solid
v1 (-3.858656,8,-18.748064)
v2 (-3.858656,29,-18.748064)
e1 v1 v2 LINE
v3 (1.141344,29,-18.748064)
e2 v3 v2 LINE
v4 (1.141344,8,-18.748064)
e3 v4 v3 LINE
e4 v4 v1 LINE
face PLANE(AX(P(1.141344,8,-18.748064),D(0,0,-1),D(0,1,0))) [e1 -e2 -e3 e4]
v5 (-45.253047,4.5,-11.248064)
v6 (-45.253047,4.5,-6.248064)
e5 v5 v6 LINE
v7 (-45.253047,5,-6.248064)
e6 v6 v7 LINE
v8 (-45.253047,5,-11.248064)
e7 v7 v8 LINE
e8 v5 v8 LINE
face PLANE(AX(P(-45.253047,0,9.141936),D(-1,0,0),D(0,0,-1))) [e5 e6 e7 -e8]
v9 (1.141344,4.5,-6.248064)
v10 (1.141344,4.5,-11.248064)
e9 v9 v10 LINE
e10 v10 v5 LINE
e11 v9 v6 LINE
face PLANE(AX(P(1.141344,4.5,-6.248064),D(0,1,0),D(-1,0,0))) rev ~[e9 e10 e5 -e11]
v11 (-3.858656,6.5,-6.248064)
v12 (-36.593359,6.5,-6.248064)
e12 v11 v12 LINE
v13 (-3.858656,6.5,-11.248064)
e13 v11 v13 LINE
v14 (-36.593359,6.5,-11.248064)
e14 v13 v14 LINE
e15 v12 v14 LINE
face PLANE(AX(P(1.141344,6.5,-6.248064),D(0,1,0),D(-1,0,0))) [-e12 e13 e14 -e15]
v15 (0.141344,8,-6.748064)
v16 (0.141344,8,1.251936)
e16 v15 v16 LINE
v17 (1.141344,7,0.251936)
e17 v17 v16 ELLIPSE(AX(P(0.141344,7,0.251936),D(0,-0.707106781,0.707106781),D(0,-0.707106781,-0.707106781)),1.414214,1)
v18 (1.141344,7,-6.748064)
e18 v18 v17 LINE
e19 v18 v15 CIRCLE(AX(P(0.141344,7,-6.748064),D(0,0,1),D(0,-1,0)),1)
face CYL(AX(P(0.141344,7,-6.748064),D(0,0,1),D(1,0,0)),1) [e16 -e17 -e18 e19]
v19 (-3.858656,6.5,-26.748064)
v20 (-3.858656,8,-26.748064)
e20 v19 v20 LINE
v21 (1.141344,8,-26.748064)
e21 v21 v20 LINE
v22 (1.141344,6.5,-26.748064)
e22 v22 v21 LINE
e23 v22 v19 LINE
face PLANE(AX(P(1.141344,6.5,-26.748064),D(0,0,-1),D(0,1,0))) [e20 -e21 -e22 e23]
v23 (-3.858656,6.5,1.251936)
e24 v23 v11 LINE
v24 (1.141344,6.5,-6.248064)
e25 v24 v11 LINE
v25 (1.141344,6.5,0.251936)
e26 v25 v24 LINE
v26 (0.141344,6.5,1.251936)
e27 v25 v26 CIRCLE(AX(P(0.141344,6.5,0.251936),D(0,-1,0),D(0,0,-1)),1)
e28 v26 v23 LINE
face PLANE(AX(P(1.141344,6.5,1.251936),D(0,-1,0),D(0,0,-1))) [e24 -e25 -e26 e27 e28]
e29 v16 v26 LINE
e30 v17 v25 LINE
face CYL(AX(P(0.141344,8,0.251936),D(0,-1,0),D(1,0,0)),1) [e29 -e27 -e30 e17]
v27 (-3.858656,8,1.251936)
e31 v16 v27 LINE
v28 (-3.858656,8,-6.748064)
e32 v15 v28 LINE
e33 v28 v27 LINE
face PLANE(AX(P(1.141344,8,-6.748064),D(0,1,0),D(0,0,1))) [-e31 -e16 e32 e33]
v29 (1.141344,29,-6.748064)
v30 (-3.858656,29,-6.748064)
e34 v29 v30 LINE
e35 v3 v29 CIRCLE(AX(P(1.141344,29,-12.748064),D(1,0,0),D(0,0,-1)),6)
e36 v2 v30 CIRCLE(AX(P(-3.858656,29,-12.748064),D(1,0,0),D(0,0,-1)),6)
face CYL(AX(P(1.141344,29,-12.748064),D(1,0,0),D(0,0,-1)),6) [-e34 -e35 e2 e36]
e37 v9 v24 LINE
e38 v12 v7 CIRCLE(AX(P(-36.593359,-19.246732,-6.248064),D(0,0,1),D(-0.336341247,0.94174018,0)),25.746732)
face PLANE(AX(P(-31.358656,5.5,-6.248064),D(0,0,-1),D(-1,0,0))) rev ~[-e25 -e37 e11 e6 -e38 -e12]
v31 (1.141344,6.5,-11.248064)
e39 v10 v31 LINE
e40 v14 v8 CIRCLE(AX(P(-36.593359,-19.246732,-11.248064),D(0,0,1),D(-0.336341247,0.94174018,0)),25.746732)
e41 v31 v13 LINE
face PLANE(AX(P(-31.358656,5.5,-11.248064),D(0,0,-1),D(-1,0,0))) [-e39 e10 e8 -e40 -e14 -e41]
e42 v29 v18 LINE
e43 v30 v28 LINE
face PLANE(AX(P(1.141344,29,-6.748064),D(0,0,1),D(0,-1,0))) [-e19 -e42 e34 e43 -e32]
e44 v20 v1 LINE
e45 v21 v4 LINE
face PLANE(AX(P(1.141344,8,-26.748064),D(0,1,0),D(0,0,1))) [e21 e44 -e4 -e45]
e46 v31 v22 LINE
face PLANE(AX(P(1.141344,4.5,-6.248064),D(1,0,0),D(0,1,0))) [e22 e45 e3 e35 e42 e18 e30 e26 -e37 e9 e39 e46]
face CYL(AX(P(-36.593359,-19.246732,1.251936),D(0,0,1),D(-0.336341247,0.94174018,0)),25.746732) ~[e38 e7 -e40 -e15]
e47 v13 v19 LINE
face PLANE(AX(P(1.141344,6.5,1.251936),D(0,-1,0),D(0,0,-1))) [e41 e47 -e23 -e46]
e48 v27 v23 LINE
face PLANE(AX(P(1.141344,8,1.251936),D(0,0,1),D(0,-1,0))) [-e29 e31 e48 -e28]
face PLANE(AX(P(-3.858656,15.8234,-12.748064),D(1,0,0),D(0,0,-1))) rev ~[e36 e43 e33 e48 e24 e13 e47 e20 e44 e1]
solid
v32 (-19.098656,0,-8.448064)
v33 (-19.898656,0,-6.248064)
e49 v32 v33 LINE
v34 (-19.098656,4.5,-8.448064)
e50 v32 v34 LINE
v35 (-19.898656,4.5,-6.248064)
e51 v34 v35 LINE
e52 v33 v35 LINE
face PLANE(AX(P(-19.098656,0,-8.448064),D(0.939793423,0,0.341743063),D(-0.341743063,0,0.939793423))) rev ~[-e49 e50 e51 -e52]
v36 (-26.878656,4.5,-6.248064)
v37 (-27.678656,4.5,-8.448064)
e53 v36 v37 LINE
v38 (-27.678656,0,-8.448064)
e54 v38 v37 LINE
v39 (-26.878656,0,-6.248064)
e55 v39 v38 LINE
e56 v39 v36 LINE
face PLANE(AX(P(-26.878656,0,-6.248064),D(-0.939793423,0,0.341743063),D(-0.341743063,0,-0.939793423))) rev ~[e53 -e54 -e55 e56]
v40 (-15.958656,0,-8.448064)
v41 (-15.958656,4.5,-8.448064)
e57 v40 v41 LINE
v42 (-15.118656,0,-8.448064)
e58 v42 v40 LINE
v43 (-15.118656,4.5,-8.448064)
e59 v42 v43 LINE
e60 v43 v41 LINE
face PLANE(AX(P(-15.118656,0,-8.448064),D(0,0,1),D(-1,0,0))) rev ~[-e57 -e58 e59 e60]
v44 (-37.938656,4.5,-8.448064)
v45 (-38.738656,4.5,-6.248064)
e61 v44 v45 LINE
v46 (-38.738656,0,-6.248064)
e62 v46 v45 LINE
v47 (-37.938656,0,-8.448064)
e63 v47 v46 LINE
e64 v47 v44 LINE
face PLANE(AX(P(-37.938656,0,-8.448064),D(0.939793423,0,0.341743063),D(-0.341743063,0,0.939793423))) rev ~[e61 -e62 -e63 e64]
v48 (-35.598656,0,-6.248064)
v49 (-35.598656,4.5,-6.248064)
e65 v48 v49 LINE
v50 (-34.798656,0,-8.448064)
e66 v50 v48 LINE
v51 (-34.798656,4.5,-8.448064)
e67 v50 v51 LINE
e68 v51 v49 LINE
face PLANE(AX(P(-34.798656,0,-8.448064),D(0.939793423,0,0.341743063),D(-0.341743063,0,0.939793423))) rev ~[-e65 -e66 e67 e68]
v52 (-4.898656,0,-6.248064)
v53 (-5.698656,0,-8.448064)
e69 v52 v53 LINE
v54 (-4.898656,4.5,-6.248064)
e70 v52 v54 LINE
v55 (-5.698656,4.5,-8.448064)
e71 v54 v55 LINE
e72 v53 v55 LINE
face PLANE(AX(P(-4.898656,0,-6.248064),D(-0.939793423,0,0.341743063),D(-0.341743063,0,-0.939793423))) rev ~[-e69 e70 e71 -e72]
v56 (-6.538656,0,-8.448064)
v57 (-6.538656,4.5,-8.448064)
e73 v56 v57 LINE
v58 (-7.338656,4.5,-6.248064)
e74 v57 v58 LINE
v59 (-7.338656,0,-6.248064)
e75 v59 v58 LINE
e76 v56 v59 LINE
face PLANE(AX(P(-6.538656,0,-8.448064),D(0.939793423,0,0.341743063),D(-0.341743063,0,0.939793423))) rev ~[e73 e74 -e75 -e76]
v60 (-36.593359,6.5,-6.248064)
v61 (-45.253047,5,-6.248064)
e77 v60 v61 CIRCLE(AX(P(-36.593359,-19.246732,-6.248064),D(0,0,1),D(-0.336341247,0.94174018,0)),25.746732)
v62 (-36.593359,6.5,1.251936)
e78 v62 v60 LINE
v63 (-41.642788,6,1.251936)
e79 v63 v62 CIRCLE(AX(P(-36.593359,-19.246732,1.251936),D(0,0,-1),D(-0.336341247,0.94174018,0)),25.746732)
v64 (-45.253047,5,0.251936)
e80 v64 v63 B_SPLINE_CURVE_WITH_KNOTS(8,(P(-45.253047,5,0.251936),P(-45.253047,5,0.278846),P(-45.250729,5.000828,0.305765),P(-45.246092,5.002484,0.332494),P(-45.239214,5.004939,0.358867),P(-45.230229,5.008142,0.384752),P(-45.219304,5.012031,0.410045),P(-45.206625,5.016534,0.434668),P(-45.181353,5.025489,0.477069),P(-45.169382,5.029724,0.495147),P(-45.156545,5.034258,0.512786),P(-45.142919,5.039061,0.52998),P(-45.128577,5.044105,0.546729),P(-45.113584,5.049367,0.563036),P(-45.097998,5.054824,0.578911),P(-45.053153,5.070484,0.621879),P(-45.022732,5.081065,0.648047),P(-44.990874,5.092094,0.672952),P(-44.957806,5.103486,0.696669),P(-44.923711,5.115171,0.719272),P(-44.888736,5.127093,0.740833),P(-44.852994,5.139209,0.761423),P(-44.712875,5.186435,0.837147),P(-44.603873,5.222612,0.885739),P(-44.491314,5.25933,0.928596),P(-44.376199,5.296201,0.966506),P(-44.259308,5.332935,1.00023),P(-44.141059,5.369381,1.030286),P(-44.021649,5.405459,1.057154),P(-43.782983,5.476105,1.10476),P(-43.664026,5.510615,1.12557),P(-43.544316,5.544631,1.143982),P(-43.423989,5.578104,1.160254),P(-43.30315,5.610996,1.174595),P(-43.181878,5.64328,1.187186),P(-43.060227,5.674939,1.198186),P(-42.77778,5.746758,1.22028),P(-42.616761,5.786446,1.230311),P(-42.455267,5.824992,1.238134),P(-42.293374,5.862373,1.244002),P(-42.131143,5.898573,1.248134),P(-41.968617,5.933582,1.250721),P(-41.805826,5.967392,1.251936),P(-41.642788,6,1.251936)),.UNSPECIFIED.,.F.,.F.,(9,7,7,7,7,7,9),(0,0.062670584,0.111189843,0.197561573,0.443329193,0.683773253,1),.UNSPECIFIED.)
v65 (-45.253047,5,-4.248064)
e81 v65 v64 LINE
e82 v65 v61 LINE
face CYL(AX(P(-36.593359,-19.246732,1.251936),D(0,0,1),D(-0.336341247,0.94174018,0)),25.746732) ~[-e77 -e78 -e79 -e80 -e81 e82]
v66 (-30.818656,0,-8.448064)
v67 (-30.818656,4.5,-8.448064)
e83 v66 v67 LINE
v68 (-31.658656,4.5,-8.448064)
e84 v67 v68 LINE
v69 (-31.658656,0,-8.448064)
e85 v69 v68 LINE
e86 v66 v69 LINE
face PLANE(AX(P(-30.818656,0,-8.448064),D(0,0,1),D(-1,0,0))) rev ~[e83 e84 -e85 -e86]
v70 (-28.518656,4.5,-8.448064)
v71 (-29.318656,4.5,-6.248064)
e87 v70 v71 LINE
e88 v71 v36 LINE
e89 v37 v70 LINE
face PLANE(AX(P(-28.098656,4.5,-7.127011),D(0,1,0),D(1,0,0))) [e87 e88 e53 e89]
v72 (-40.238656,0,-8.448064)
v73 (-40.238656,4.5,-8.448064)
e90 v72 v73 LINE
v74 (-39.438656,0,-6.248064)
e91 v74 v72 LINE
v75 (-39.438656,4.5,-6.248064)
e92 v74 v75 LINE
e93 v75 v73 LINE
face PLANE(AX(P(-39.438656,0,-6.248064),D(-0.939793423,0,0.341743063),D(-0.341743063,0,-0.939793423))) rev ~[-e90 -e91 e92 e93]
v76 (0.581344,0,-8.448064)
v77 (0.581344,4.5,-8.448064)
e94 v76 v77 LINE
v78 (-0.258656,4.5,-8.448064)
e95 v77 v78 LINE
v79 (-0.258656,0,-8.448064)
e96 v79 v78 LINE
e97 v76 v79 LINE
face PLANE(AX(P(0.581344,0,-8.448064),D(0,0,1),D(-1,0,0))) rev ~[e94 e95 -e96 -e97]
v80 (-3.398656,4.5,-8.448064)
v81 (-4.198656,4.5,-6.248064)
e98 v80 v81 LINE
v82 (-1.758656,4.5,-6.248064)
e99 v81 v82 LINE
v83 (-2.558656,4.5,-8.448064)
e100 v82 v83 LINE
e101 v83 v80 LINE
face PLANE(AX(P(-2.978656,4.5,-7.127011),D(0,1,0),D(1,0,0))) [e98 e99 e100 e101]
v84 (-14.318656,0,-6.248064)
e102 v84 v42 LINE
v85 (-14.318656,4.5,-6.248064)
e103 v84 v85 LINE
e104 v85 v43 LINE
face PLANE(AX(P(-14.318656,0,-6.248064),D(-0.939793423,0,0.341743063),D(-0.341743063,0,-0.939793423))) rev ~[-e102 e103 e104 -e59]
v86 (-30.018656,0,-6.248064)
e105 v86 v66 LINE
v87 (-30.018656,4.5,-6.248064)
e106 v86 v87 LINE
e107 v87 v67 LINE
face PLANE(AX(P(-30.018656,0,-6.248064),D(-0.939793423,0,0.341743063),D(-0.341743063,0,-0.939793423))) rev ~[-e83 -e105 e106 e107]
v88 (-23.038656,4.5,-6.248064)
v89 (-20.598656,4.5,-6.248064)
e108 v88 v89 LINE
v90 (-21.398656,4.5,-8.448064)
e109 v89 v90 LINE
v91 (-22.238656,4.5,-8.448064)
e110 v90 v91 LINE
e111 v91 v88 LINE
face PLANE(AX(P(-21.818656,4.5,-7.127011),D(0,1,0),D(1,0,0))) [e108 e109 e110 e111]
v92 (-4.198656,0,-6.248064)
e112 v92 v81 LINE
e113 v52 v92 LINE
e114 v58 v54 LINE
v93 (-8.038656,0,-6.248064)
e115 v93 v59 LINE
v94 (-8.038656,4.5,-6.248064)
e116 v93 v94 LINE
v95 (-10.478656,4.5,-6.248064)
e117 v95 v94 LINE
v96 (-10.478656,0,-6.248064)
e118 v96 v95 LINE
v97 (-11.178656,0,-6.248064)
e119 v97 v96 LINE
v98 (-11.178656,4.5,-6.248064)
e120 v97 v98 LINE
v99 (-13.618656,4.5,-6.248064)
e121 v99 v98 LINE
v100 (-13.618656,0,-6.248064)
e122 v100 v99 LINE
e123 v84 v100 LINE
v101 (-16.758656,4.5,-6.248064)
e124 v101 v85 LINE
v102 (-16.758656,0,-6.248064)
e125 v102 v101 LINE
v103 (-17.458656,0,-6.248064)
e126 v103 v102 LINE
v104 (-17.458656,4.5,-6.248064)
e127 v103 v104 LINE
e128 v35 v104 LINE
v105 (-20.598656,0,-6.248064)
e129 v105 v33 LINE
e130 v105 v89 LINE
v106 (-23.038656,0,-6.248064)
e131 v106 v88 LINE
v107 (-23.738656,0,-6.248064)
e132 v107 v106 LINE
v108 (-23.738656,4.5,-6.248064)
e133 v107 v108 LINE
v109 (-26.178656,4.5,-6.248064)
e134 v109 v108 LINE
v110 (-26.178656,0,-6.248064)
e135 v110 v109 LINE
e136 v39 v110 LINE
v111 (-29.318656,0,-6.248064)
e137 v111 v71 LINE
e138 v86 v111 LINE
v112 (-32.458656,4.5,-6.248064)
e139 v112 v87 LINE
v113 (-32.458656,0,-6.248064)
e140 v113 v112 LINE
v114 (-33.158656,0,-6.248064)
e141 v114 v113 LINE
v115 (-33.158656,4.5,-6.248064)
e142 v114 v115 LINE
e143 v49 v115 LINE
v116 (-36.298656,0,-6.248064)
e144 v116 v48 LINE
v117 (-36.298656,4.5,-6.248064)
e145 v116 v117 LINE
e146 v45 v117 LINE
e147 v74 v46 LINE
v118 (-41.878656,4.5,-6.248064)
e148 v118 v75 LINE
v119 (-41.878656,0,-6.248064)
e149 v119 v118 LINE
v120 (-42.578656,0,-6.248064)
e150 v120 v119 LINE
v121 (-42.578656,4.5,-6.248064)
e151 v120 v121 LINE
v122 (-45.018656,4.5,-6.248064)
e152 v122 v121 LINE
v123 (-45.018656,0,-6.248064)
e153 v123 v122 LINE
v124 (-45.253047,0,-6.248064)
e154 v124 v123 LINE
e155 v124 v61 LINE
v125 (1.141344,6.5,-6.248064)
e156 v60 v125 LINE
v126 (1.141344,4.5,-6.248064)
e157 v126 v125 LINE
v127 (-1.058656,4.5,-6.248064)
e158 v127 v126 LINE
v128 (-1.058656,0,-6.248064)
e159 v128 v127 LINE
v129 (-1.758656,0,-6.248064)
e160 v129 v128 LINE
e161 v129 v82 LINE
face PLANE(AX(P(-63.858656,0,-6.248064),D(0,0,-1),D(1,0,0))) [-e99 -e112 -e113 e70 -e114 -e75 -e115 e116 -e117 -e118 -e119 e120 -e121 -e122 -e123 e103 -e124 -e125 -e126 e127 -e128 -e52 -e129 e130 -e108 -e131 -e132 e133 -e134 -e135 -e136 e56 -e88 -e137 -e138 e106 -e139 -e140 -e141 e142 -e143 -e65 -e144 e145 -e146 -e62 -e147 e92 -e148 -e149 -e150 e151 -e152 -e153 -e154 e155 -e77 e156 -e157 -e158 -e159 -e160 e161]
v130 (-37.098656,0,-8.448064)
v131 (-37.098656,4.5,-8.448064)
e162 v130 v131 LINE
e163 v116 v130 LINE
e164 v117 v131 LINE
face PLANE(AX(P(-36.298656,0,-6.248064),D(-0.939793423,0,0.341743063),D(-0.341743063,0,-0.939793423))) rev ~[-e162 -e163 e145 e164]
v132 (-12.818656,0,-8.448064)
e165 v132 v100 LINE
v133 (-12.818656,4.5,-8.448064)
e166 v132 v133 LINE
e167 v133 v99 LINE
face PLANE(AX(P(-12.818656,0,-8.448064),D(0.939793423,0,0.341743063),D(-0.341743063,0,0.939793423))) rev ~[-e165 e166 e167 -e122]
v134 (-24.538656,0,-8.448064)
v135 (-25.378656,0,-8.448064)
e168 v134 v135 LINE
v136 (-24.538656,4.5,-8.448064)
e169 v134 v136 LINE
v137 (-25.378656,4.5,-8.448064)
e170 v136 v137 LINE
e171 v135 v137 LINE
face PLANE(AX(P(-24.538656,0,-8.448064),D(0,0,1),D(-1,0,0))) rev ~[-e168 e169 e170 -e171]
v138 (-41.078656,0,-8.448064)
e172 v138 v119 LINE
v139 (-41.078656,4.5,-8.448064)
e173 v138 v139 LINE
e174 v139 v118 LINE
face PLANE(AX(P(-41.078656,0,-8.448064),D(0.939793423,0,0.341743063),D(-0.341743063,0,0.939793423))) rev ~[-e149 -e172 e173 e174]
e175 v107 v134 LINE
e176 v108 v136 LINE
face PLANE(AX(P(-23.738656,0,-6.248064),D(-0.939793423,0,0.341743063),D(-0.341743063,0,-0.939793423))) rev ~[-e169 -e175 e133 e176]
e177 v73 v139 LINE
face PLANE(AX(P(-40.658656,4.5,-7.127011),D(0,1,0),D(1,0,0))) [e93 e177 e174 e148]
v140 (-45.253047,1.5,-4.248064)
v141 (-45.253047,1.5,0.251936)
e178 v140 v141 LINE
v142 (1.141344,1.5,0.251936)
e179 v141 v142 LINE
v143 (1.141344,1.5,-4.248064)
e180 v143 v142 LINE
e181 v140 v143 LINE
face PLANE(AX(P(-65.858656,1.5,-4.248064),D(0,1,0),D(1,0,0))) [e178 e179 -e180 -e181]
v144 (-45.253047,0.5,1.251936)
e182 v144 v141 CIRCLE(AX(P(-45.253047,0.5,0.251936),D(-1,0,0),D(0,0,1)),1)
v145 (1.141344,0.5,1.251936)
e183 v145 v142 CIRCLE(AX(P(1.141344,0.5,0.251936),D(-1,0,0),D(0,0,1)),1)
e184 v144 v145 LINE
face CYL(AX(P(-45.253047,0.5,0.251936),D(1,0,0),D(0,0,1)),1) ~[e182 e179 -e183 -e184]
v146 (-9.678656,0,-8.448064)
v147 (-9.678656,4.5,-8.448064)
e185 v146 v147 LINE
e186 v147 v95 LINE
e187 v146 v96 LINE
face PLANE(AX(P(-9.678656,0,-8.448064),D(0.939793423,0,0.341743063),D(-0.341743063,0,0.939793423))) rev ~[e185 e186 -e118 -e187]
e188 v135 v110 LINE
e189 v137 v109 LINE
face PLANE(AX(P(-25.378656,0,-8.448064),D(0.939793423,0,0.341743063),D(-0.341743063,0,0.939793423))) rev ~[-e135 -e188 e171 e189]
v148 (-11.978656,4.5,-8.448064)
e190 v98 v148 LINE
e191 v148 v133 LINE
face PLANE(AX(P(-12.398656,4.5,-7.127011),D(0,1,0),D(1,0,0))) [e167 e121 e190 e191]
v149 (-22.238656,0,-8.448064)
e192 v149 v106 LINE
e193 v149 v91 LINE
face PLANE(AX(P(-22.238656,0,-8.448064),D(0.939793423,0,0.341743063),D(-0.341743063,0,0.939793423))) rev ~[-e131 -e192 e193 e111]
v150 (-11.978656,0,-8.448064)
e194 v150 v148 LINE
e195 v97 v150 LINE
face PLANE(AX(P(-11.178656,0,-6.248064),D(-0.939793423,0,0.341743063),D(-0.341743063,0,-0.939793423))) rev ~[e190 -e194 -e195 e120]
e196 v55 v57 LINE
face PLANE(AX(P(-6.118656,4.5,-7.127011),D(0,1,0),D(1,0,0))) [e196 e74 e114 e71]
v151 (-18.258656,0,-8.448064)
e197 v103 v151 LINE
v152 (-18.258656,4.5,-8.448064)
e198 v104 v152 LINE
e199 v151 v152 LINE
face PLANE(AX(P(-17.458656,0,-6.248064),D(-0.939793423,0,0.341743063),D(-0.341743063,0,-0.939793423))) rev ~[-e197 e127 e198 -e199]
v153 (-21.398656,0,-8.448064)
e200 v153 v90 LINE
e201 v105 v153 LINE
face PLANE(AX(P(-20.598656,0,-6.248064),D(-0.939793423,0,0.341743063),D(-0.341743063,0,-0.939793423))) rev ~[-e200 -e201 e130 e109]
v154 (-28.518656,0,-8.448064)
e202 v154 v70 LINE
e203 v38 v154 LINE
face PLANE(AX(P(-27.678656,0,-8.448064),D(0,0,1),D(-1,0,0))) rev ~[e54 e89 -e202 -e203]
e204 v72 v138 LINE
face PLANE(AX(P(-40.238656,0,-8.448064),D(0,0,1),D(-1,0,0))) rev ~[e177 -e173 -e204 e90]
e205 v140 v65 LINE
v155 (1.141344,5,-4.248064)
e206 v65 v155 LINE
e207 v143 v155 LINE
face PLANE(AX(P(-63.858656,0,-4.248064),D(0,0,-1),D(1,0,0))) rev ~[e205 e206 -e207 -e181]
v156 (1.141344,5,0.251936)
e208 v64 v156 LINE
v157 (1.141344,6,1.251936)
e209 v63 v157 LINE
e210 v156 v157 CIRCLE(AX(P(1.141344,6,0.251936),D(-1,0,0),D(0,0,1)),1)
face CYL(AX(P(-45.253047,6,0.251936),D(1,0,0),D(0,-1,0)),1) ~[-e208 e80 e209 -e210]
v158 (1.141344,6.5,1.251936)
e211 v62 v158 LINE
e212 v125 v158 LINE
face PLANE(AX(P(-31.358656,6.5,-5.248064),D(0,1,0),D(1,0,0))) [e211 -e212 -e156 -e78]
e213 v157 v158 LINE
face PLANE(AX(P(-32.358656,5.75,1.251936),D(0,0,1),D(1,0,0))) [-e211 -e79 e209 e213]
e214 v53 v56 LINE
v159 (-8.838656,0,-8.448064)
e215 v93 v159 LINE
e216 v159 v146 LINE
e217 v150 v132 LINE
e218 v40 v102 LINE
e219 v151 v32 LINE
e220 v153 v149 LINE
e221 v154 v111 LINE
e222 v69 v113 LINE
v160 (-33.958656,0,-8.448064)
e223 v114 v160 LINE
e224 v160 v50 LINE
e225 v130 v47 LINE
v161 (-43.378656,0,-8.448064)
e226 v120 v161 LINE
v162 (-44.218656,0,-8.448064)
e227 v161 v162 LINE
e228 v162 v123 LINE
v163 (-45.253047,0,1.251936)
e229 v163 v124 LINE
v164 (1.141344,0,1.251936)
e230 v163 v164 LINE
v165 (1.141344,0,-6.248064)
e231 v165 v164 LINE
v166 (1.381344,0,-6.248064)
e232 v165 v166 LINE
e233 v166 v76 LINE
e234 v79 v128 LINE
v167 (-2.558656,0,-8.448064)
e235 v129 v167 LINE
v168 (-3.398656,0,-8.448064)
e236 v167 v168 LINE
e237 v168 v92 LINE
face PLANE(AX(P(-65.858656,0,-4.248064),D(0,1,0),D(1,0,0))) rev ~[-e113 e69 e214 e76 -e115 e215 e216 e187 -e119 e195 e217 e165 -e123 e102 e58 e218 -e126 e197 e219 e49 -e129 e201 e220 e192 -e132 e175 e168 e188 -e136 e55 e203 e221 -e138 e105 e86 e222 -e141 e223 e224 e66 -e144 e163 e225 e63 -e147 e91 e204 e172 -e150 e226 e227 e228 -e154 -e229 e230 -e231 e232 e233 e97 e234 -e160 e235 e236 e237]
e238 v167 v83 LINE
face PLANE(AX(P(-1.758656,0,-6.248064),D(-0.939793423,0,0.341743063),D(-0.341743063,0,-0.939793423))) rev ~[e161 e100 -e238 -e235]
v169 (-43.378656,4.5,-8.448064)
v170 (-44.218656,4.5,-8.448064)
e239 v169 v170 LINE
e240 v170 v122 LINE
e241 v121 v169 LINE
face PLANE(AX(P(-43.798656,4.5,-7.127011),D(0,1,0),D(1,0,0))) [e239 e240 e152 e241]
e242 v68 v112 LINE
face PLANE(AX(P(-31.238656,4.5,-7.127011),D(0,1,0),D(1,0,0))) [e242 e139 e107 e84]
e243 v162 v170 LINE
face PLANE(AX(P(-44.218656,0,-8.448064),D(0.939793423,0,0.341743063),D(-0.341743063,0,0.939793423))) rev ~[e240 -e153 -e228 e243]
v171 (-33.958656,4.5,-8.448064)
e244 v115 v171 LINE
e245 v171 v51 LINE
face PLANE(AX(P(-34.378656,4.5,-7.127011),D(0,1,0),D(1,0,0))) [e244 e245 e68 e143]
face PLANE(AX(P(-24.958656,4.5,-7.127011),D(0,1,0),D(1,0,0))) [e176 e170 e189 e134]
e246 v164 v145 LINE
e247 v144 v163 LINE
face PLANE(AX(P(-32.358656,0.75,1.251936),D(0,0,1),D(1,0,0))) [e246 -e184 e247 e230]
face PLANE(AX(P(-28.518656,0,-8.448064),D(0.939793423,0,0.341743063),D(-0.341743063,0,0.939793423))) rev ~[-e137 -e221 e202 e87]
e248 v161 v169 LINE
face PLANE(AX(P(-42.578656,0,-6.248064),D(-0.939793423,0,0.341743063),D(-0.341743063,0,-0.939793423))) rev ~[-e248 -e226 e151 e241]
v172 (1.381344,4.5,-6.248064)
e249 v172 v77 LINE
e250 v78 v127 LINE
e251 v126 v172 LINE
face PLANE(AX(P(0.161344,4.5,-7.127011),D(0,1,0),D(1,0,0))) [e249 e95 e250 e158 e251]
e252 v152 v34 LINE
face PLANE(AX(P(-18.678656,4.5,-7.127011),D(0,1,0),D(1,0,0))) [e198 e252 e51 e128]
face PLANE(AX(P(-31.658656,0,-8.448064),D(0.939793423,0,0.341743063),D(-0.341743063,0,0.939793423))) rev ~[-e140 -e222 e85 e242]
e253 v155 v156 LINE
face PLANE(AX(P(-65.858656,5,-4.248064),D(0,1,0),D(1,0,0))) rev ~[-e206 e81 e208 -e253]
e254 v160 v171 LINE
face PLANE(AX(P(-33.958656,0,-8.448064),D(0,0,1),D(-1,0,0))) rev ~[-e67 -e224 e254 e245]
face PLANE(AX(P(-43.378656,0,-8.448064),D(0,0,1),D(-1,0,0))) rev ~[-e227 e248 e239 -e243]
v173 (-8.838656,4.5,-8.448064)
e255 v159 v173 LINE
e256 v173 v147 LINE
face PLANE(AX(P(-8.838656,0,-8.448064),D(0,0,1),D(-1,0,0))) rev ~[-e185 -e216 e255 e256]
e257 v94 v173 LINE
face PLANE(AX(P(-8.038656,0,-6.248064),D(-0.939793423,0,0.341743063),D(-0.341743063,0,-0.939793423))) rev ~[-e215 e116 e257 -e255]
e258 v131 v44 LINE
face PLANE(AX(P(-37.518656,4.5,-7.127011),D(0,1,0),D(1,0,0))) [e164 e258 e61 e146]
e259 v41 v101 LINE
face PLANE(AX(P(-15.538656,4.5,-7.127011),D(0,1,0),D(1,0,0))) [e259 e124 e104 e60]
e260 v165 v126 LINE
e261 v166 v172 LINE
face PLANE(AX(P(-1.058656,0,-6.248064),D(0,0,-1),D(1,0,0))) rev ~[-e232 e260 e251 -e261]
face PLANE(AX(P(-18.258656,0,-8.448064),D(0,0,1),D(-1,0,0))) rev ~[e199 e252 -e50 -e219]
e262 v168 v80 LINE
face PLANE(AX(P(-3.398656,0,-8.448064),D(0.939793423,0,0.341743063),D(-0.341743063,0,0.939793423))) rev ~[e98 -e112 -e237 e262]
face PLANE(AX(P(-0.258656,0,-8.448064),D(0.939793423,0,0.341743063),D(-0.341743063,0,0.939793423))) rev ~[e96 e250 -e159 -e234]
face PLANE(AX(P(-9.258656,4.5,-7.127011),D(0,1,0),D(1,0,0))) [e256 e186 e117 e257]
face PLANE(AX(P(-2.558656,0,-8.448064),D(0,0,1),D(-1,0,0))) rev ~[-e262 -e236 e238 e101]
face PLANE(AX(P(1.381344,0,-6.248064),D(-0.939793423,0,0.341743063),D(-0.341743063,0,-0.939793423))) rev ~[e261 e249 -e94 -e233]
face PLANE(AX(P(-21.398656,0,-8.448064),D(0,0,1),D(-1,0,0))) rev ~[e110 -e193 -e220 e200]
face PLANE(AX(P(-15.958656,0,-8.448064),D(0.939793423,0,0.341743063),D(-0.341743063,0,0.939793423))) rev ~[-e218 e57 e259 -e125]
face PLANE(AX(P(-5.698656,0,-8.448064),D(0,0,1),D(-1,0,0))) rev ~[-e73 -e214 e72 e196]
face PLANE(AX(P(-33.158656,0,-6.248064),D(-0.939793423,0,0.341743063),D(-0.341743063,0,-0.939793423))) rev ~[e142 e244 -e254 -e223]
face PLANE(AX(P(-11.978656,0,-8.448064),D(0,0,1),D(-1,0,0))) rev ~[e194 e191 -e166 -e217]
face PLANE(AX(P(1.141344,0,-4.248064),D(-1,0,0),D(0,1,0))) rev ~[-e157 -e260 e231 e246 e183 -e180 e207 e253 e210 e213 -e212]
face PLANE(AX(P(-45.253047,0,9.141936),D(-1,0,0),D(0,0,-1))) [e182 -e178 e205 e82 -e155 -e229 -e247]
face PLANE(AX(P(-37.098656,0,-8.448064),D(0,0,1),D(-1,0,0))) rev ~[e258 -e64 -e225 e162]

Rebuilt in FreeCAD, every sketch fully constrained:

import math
import FreeCAD as App
import Part
import Sketcher
from FreeCAD import Vector


def edges_at(feature, points):
    """Names of the edges that pass closest to the given points."""
    edges = feature.Shape.Edges
    near = lambda p: min(range(len(edges)), key=lambda i: edges[i].distToShape(Part.Vertex(*p))[0])
    return sorted({f"Edge{near(p) + 1}" for p in points})


def add_polygon(sketch, points):
    """Adds a closed chain of lines whose ends are joined by coincident constraints."""
    first, n = sketch.GeometryCount, len(points)
    for a, b in zip(points, points[1:] + points[:1]):
        sketch.addGeometry(Part.LineSegment(App.Vector(*a, 0), App.Vector(*b, 0)), False)
    for i in range(n):
        sketch.addConstraint(Sketcher.Constraint("Coincident", first + i, 2, first + (i + 1) % n, 1))

doc = App.newDocument("Part")
body = doc.addObject("PartDesign::Body", "Body")

sketch1 = body.newObject("Sketcher::SketchObject", "Sketch")
sketch1.AttachmentSupport = (doc.getObject("XZ_Plane"), [""])
sketch1.MapMode = "FlatFace"
add_polygon(sketch1, [(-63.9, -6.2), (-63.9, -4.2), (1.1, -4.2), (1.1, -6.2)])
sketch1.addConstraint(Sketcher.Constraint("Vertical", 0))
sketch1.addConstraint(Sketcher.Constraint("Horizontal", 1))
sketch1.addConstraint(Sketcher.Constraint("Vertical", 2))
sketch1.addConstraint(Sketcher.Constraint("Horizontal", 3))
sketch1.addConstraint(Sketcher.Constraint("DistanceX", 1, 1, 1, 2, 65.0))
sketch1.addConstraint(Sketcher.Constraint("DistanceY", 0, 1, 0, 2, 2.0))
sketch1.addConstraint(Sketcher.Constraint("DistanceX", 0, 2, -1, 1, 63.858656))
sketch1.addConstraint(Sketcher.Constraint("DistanceY", 0, 2, -1, 1, 4.248064))
pad1 = body.newObject("PartDesign::Pad", "Pad")
pad1.Profile = sketch1
pad1.Length = 6.5
pad1.Reversed = True

sketch2 = body.newObject("Sketcher::SketchObject", "Sketch001")
sketch2.AttachmentSupport = (doc.getObject("XZ_Plane"), [""])
sketch2.MapMode = "FlatFace"
add_polygon(sketch2, [(-63.1, -8.4), (-63.9, -6.2), (-61.4, -6.2), (-62.2, -8.4)])
add_polygon(sketch2, [(-59.9, -8.4), (-60.7, -6.2), (-58.3, -6.2), (-59.1, -8.4)])
add_polygon(sketch2, [(-56.8, -8.4), (-57.6, -6.2), (-55.1, -6.2), (-55.9, -8.4)])
add_polygon(sketch2, [(-53.6, -8.4), (-54.4, -6.2), (-52, -6.2), (-52.8, -8.4)])
add_polygon(sketch2, [(-50.5, -8.4), (-51.3, -6.2), (-48.9, -6.2), (-49.7, -8.4)])
add_polygon(sketch2, [(-47.4, -8.4), (-48.2, -6.2), (-45.7, -6.2), (-46.5, -8.4)])
add_polygon(sketch2, [(-44.2, -8.4), (-45, -6.2), (-42.6, -6.2), (-43.4, -8.4)])
add_polygon(sketch2, [(-41.1, -8.4), (-41.9, -6.2), (-39.4, -6.2), (-40.2, -8.4)])
add_polygon(sketch2, [(-37.9, -8.4), (-38.7, -6.2), (-36.3, -6.2), (-37.1, -8.4)])
add_polygon(sketch2, [(-34.8, -8.4), (-35.6, -6.2), (-33.2, -6.2), (-34, -8.4)])
add_polygon(sketch2, [(-31.7, -8.4), (-32.5, -6.2), (-30, -6.2), (-30.8, -8.4)])
add_polygon(sketch2, [(-29.3, -6.2), (-26.9, -6.2), (-27.7, -8.4), (-28.5, -8.4)])
add_polygon(sketch2, [(-26.2, -6.2), (-23.7, -6.2), (-24.5, -8.4), (-25.4, -8.4)])
add_polygon(sketch2, [(-23, -6.2), (-20.6, -6.2), (-21.4, -8.4), (-22.2, -8.4)])
add_polygon(sketch2, [(-19.9, -6.2), (-17.5, -6.2), (-18.3, -8.4), (-19.1, -8.4)])
add_polygon(sketch2, [(-16.8, -6.2), (-14.3, -6.2), (-15.1, -8.4), (-16, -8.4)])
add_polygon(sketch2, [(-13.6, -6.2), (-11.2, -6.2), (-12, -8.4), (-12.8, -8.4)])
add_polygon(sketch2, [(-10.5, -6.2), (-8, -6.2), (-8.8, -8.4), (-9.7, -8.4)])
add_polygon(sketch2, [(-7.3, -6.2), (-4.9, -6.2), (-5.7, -8.4), (-6.5, -8.4)])
add_polygon(sketch2, [(-4.2, -6.2), (-1.8, -6.2), (-2.6, -8.4), (-3.4, -8.4)])
add_polygon(sketch2, [(-0.3, -8.4), (-1.1, -6.2), (1.4, -6.2), (0.6, -8.4)])
sketch2.addConstraint(Sketcher.Constraint("Horizontal", 1))
sketch2.addConstraint(Sketcher.Constraint("Horizontal", 3))
sketch2.addConstraint(Sketcher.Constraint("Horizontal", 5))
sketch2.addConstraint(Sketcher.Constraint("Horizontal", 7))
sketch2.addConstraint(Sketcher.Constraint("Horizontal", 9))
sketch2.addConstraint(Sketcher.Constraint("Horizontal", 11))
sketch2.addConstraint(Sketcher.Constraint("Horizontal", 13))
sketch2.addConstraint(Sketcher.Constraint("Horizontal", 15))
sketch2.addConstraint(Sketcher.Constraint("Horizontal", 17))
sketch2.addConstraint(Sketcher.Constraint("Horizontal", 19))
sketch2.addConstraint(Sketcher.Constraint("Horizontal", 21))
sketch2.addConstraint(Sketcher.Constraint("Horizontal", 23))
sketch2.addConstraint(Sketcher.Constraint("Horizontal", 25))
sketch2.addConstraint(Sketcher.Constraint("Horizontal", 27))
sketch2.addConstraint(Sketcher.Constraint("Horizontal", 29))
sketch2.addConstraint(Sketcher.Constraint("Horizontal", 31))
sketch2.addConstraint(Sketcher.Constraint("Horizontal", 33))
sketch2.addConstraint(Sketcher.Constraint("Horizontal", 35))
sketch2.addConstraint(Sketcher.Constraint("Horizontal", 37))
sketch2.addConstraint(Sketcher.Constraint("Horizontal", 39))
sketch2.addConstraint(Sketcher.Constraint("Horizontal", 41))
sketch2.addConstraint(Sketcher.Constraint("Horizontal", 43))
sketch2.addConstraint(Sketcher.Constraint("Horizontal", 44))
sketch2.addConstraint(Sketcher.Constraint("Horizontal", 46))
sketch2.addConstraint(Sketcher.Constraint("Horizontal", 48))
sketch2.addConstraint(Sketcher.Constraint("Horizontal", 50))
sketch2.addConstraint(Sketcher.Constraint("Horizontal", 52))
sketch2.addConstraint(Sketcher.Constraint("Horizontal", 54))
sketch2.addConstraint(Sketcher.Constraint("Horizontal", 56))
sketch2.addConstraint(Sketcher.Constraint("Horizontal", 58))
sketch2.addConstraint(Sketcher.Constraint("Horizontal", 60))
sketch2.addConstraint(Sketcher.Constraint("Horizontal", 62))
sketch2.addConstraint(Sketcher.Constraint("Horizontal", 64))
sketch2.addConstraint(Sketcher.Constraint("Horizontal", 66))
sketch2.addConstraint(Sketcher.Constraint("Horizontal", 68))
sketch2.addConstraint(Sketcher.Constraint("Horizontal", 70))
sketch2.addConstraint(Sketcher.Constraint("Horizontal", 72))
sketch2.addConstraint(Sketcher.Constraint("Horizontal", 74))
sketch2.addConstraint(Sketcher.Constraint("Horizontal", 76))
sketch2.addConstraint(Sketcher.Constraint("Horizontal", 78))
sketch2.addConstraint(Sketcher.Constraint("Horizontal", 81))
sketch2.addConstraint(Sketcher.Constraint("Horizontal", 83))
sketch2.addConstraint(Sketcher.Constraint("Parallel", 0, 4))
sketch2.addConstraint(Sketcher.Constraint("Parallel", 2, 6))
sketch2.addConstraint(Sketcher.Constraint("Parallel", 4, 8))
sketch2.addConstraint(Sketcher.Constraint("Parallel", 6, 10))
sketch2.addConstraint(Sketcher.Constraint("Parallel", 8, 12))
sketch2.addConstraint(Sketcher.Constraint("Parallel", 10, 14))
sketch2.addConstraint(Sketcher.Constraint("Parallel", 12, 16))
sketch2.addConstraint(Sketcher.Constraint("Parallel", 14, 18))
sketch2.addConstraint(Sketcher.Constraint("Parallel", 16, 20))
sketch2.addConstraint(Sketcher.Constraint("Parallel", 18, 22))
sketch2.addConstraint(Sketcher.Constraint("Parallel", 20, 24))
sketch2.addConstraint(Sketcher.Constraint("Parallel", 22, 26))
sketch2.addConstraint(Sketcher.Constraint("Parallel", 24, 28))
sketch2.addConstraint(Sketcher.Constraint("Parallel", 26, 30))
sketch2.addConstraint(Sketcher.Constraint("Parallel", 28, 32))
sketch2.addConstraint(Sketcher.Constraint("Parallel", 30, 34))
sketch2.addConstraint(Sketcher.Constraint("Parallel", 32, 36))
sketch2.addConstraint(Sketcher.Constraint("Parallel", 34, 38))
sketch2.addConstraint(Sketcher.Constraint("Parallel", 36, 40))
sketch2.addConstraint(Sketcher.Constraint("Parallel", 38, 42))
sketch2.addConstraint(Sketcher.Constraint("Parallel", 42, 45))
sketch2.addConstraint(Sketcher.Constraint("Parallel", 40, 47))
sketch2.addConstraint(Sketcher.Constraint("Parallel", 45, 49))
sketch2.addConstraint(Sketcher.Constraint("Parallel", 47, 51))
sketch2.addConstraint(Sketcher.Constraint("Parallel", 49, 53))
sketch2.addConstraint(Sketcher.Constraint("Parallel", 51, 55))
sketch2.addConstraint(Sketcher.Constraint("Parallel", 53, 57))
sketch2.addConstraint(Sketcher.Constraint("Parallel", 55, 59))
sketch2.addConstraint(Sketcher.Constraint("Parallel", 57, 61))
sketch2.addConstraint(Sketcher.Constraint("Parallel", 59, 63))
sketch2.addConstraint(Sketcher.Constraint("Parallel", 61, 65))
sketch2.addConstraint(Sketcher.Constraint("Parallel", 63, 67))
sketch2.addConstraint(Sketcher.Constraint("Parallel", 65, 69))
sketch2.addConstraint(Sketcher.Constraint("Parallel", 67, 71))
sketch2.addConstraint(Sketcher.Constraint("Parallel", 69, 73))
sketch2.addConstraint(Sketcher.Constraint("Parallel", 71, 75))
sketch2.addConstraint(Sketcher.Constraint("Parallel", 73, 77))
sketch2.addConstraint(Sketcher.Constraint("Parallel", 75, 79))
sketch2.addConstraint(Sketcher.Constraint("Parallel", 79, 80))
sketch2.addConstraint(Sketcher.Constraint("Parallel", 77, 82))
sketch2.addConstraint(Sketcher.Constraint("Horizontal", 1, 2, 4, 2))
sketch2.addConstraint(Sketcher.Constraint("Horizontal", 3, 2, 6, 2))
sketch2.addConstraint(Sketcher.Constraint("Horizontal", 5, 2, 8, 2))
sketch2.addConstraint(Sketcher.Constraint("Horizontal", 7, 2, 10, 2))
sketch2.addConstraint(Sketcher.Constraint("Horizontal", 9, 2, 12, 2))
sketch2.addConstraint(Sketcher.Constraint("Horizontal", 11, 2, 14, 2))
sketch2.addConstraint(Sketcher.Constraint("Horizontal", 13, 2, 16, 2))
sketch2.addConstraint(Sketcher.Constraint("Horizontal", 15, 2, 18, 2))
sketch2.addConstraint(Sketcher.Constraint("Horizontal", 17, 2, 20, 2))
sketch2.addConstraint(Sketcher.Constraint("Horizontal", 19, 2, 22, 2))
sketch2.addConstraint(Sketcher.Constraint("Horizontal", 21, 2, 24, 2))
sketch2.addConstraint(Sketcher.Constraint("Horizontal", 23, 2, 26, 2))
sketch2.addConstraint(Sketcher.Constraint("Horizontal", 25, 2, 28, 2))
sketch2.addConstraint(Sketcher.Constraint("Horizontal", 27, 2, 30, 2))
sketch2.addConstraint(Sketcher.Constraint("Horizontal", 29, 2, 32, 2))
sketch2.addConstraint(Sketcher.Constraint("Horizontal", 31, 2, 34, 2))
sketch2.addConstraint(Sketcher.Constraint("Horizontal", 33, 2, 36, 2))
sketch2.addConstraint(Sketcher.Constraint("Horizontal", 35, 2, 38, 2))
sketch2.addConstraint(Sketcher.Constraint("Horizontal", 37, 2, 40, 2))
sketch2.addConstraint(Sketcher.Constraint("Horizontal", 39, 2, 42, 2))
sketch2.addConstraint(Sketcher.Constraint("Horizontal", 41, 2, 44, 2))
sketch2.addConstraint(Sketcher.Constraint("Horizontal", 43, 2, 45, 2))
sketch2.addConstraint(Sketcher.Constraint("Horizontal", 47, 2, 48, 2))
sketch2.addConstraint(Sketcher.Constraint("Horizontal", 46, 2, 49, 2))
sketch2.addConstraint(Sketcher.Constraint("Horizontal", 51, 2, 52, 2))
sketch2.addConstraint(Sketcher.Constraint("Horizontal", 50, 2, 53, 2))
sketch2.addConstraint(Sketcher.Constraint("Horizontal", 55, 2, 56, 2))
sketch2.addConstraint(Sketcher.Constraint("Horizontal", 54, 2, 57, 2))
sketch2.addConstraint(Sketcher.Constraint("Horizontal", 59, 2, 60, 2))
sketch2.addConstraint(Sketcher.Constraint("Horizontal", 58, 2, 61, 2))
sketch2.addConstraint(Sketcher.Constraint("Horizontal", 63, 2, 64, 2))
sketch2.addConstraint(Sketcher.Constraint("Horizontal", 62, 2, 65, 2))
sketch2.addConstraint(Sketcher.Constraint("Horizontal", 67, 2, 68, 2))
sketch2.addConstraint(Sketcher.Constraint("Horizontal", 66, 2, 69, 2))
sketch2.addConstraint(Sketcher.Constraint("Horizontal", 71, 2, 72, 2))
sketch2.addConstraint(Sketcher.Constraint("Horizontal", 70, 2, 73, 2))
sketch2.addConstraint(Sketcher.Constraint("Horizontal", 75, 2, 76, 2))
sketch2.addConstraint(Sketcher.Constraint("Horizontal", 74, 2, 77, 2))
sketch2.addConstraint(Sketcher.Constraint("Horizontal", 79, 2, 80, 2))
sketch2.addConstraint(Sketcher.Constraint("Horizontal", 78, 2, 82, 2))
sketch2.addConstraint(Sketcher.Constraint("Equal", 1, 5))
sketch2.addConstraint(Sketcher.Constraint("Equal", 5, 9))
sketch2.addConstraint(Sketcher.Constraint("Equal", 9, 13))
sketch2.addConstraint(Sketcher.Constraint("Equal", 13, 17))
sketch2.addConstraint(Sketcher.Constraint("Equal", 17, 21))
sketch2.addConstraint(Sketcher.Constraint("Equal", 21, 25))
sketch2.addConstraint(Sketcher.Constraint("Equal", 25, 29))
sketch2.addConstraint(Sketcher.Constraint("Equal", 29, 33))
sketch2.addConstraint(Sketcher.Constraint("Equal", 33, 37))
sketch2.addConstraint(Sketcher.Constraint("Equal", 37, 41))
sketch2.addConstraint(Sketcher.Constraint("Equal", 41, 44))
sketch2.addConstraint(Sketcher.Constraint("Equal", 44, 48))
sketch2.addConstraint(Sketcher.Constraint("Equal", 48, 52))
sketch2.addConstraint(Sketcher.Constraint("Equal", 52, 56))
sketch2.addConstraint(Sketcher.Constraint("Equal", 56, 60))
sketch2.addConstraint(Sketcher.Constraint("Equal", 60, 64))
sketch2.addConstraint(Sketcher.Constraint("Equal", 64, 68))
sketch2.addConstraint(Sketcher.Constraint("Equal", 68, 72))
sketch2.addConstraint(Sketcher.Constraint("Equal", 72, 76))
sketch2.addConstraint(Sketcher.Constraint("Equal", 76, 81))
sketch2.addConstraint(Sketcher.Constraint("Equal", 0, 2))
sketch2.addConstraint(Sketcher.Constraint("DistanceX", 1, 1, 1, 2, 2.44))
sketch2.addConstraint(Sketcher.Constraint("DistanceX", 3, 2, 3, 1, 0.84))
sketch2.addConstraint(Sketcher.Constraint("Distance", 0, 2.34094))
sketch2.addConstraint(Sketcher.Constraint("DistanceX", 0, 2, -1, 1, 63.858656))
sketch2.addConstraint(Sketcher.Constraint("DistanceY", 0, 2, -1, 1, 6.248064))
sketch2.addConstraint(Sketcher.Constraint("DistanceX", 4, 2, -1, 1, 60.718656))
sketch2.addConstraint(Sketcher.Constraint("DistanceX", 8, 2, -1, 1, 57.578656))
sketch2.addConstraint(Sketcher.Constraint("DistanceX", 12, 2, -1, 1, 54.438656))
sketch2.addConstraint(Sketcher.Constraint("DistanceX", 16, 2, -1, 1, 51.298656))
sketch2.addConstraint(Sketcher.Constraint("DistanceX", 20, 2, -1, 1, 48.158656))
sketch2.addConstraint(Sketcher.Constraint("DistanceX", 24, 2, -1, 1, 45.018656))
sketch2.addConstraint(Sketcher.Constraint("DistanceX", 28, 2, -1, 1, 41.878656))
sketch2.addConstraint(Sketcher.Constraint("DistanceX", 32, 2, -1, 1, 38.738656))
sketch2.addConstraint(Sketcher.Constraint("DistanceX", 36, 2, -1, 1, 35.598656))
sketch2.addConstraint(Sketcher.Constraint("DistanceX", 40, 2, -1, 1, 32.458656))
sketch2.addConstraint(Sketcher.Constraint("DistanceX", 44, 2, -1, 1, 26.878656))
sketch2.addConstraint(Sketcher.Constraint("DistanceX", 48, 2, -1, 1, 23.738656))
sketch2.addConstraint(Sketcher.Constraint("DistanceX", 52, 2, -1, 1, 20.598656))
sketch2.addConstraint(Sketcher.Constraint("DistanceX", 56, 2, -1, 1, 17.458656))
sketch2.addConstraint(Sketcher.Constraint("DistanceX", 60, 2, -1, 1, 14.318656))
sketch2.addConstraint(Sketcher.Constraint("DistanceX", 64, 2, -1, 1, 11.178656))
sketch2.addConstraint(Sketcher.Constraint("DistanceX", 68, 2, -1, 1, 8.038656))
sketch2.addConstraint(Sketcher.Constraint("DistanceX", 72, 2, -1, 1, 4.898656))
sketch2.addConstraint(Sketcher.Constraint("DistanceX", 76, 2, -1, 1, 1.758656))
sketch2.addConstraint(Sketcher.Constraint("DistanceX", 80, 2, -1, 1, 1.058656))
pad2 = body.newObject("PartDesign::Pad", "Pad001")
pad2.Profile = sketch2
pad2.Length = 4.5
pad2.Reversed = True

sketch3 = body.newObject("Sketcher::SketchObject", "Sketch002")
sketch3.AttachmentSupport = (doc.getObject("XY_Plane"), [""])
sketch3.MapMode = "FlatFace"
sketch3.AttachmentOffset = App.Placement(Vector(0, 0, -4.248064), App.Rotation())
add_polygon(sketch3, [(-65.9, 1.5), (-65.9, 0), (1.1, 0), (1.1, 1.5)])
add_polygon(sketch3, [(-65.9, 6.5), (-65.9, 5), (1.1, 5), (1.1, 6.5)])
sketch3.addConstraint(Sketcher.Constraint("Vertical", 0))
sketch3.addConstraint(Sketcher.Constraint("Horizontal", 1))
sketch3.addConstraint(Sketcher.Constraint("Vertical", 2))
sketch3.addConstraint(Sketcher.Constraint("Horizontal", 3))
sketch3.addConstraint(Sketcher.Constraint("Vertical", 4))
sketch3.addConstraint(Sketcher.Constraint("Horizontal", 5))
sketch3.addConstraint(Sketcher.Constraint("Vertical", 6))
sketch3.addConstraint(Sketcher.Constraint("Horizontal", 7))
sketch3.addConstraint(Sketcher.Constraint("PointOnObject", 0, 2, -1))
sketch3.addConstraint(Sketcher.Constraint("Vertical", 3, 2, 4, 2))
sketch3.addConstraint(Sketcher.Constraint("Vertical", 2, 2, 5, 2))
sketch3.addConstraint(Sketcher.Constraint("Equal", 2, 4))
sketch3.addConstraint(Sketcher.Constraint("DistanceX", 1, 1, 1, 2, 67.0))
sketch3.addConstraint(Sketcher.Constraint("DistanceY", 0, 2, 0, 1, 1.5))
sketch3.addConstraint(Sketcher.Constraint("DistanceY", -1, 1, 4, 2, 5.0))
sketch3.addConstraint(Sketcher.Constraint("DistanceX", 0, 2, -1, 1, 65.858656))
pad3 = body.newObject("PartDesign::Pad", "Pad002")
pad3.Profile = sketch3
pad3.Length = 5.5
body2 = doc.addObject("PartDesign::Body", "Body001")

sketch4 = body2.newObject("Sketcher::SketchObject", "Sketch003")
sketch4.AttachmentSupport = (doc.getObject("YZ_Plane001"), [""])
sketch4.MapMode = "FlatFace"
sketch4.AttachmentOffset = App.Placement(Vector(0, 0, 1.141344), App.Rotation())
sketch4.addGeometry(Part.LineSegment(Vector(6.5, 1.3, 0), Vector(6.5, -26.7, 0)), False)
sketch4.addGeometry(Part.LineSegment(Vector(6.5, -26.7, 0), Vector(8, -26.7, 0)), False)
sketch4.addGeometry(Part.LineSegment(Vector(8, -26.7, 0), Vector(8, -18.7, 0)), False)
sketch4.addGeometry(Part.LineSegment(Vector(8, -18.7, 0), Vector(29, -18.7, 0)), False)
sketch4.addGeometry(Part.ArcOfCircle(Part.Circle(Vector(29, -12.7, 0), Vector(0, 0, 1), 6), math.radians(-90), math.radians(90)), False)
sketch4.addGeometry(Part.LineSegment(Vector(29, -6.7, 0), Vector(8, -6.7, 0)), False)
sketch4.addGeometry(Part.LineSegment(Vector(8, -6.7, 0), Vector(8, 1.3, 0)), False)
sketch4.addGeometry(Part.LineSegment(Vector(8, 1.3, 0), Vector(6.5, 1.3, 0)), False)
sketch4.addConstraint(Sketcher.Constraint("Coincident", 0, 2, 1, 1))
sketch4.addConstraint(Sketcher.Constraint("Coincident", 1, 2, 2, 1))
sketch4.addConstraint(Sketcher.Constraint("Coincident", 2, 2, 3, 1))
sketch4.addConstraint(Sketcher.Constraint("Tangent", 3, 2, 4, 1))
sketch4.addConstraint(Sketcher.Constraint("Tangent", 4, 2, 5, 1))
sketch4.addConstraint(Sketcher.Constraint("Coincident", 5, 2, 6, 1))
sketch4.addConstraint(Sketcher.Constraint("Coincident", 6, 2, 7, 1))
sketch4.addConstraint(Sketcher.Constraint("Coincident", 7, 2, 0, 1))
sketch4.addConstraint(Sketcher.Constraint("Vertical", 0))
sketch4.addConstraint(Sketcher.Constraint("Horizontal", 1))
sketch4.addConstraint(Sketcher.Constraint("Vertical", 2))
sketch4.addConstraint(Sketcher.Constraint("Horizontal", 3))
sketch4.addConstraint(Sketcher.Constraint("Horizontal", 5))
sketch4.addConstraint(Sketcher.Constraint("Vertical", 6))
sketch4.addConstraint(Sketcher.Constraint("Horizontal", 7))
sketch4.addConstraint(Sketcher.Constraint("Vertical", 2, 2, 5, 2))
sketch4.addConstraint(Sketcher.Constraint("Equal", 2, 6))
sketch4.addConstraint(Sketcher.Constraint("Radius", 4, 6.0))
sketch4.addConstraint(Sketcher.Constraint("DistanceX", 3, 1, 3, 2, 21.0))
sketch4.addConstraint(Sketcher.Constraint("DistanceY", 0, 2, 0, 1, 28.0))
sketch4.addConstraint(Sketcher.Constraint("DistanceX", 1, 1, 1, 2, 1.5))
sketch4.addConstraint(Sketcher.Constraint("DistanceX", -1, 1, 4, 3, 29.0))
sketch4.addConstraint(Sketcher.Constraint("DistanceY", 4, 3, -1, 1, 12.748064))
pad4 = body2.newObject("PartDesign::Pad", "Pad003")
pad4.Profile = sketch4
pad4.Length = 5
pad4.Reversed = True

sketch5 = body2.newObject("Sketcher::SketchObject", "Sketch004")
sketch5.AttachmentSupport = (doc.getObject("XY_Plane001"), [""])
sketch5.MapMode = "FlatFace"
sketch5.AttachmentOffset = App.Placement(Vector(0, 0, -6.248064), App.Rotation())
add_polygon(sketch5, [(1.1, 6.5), (1.1, 4.5), (-63.9, 4.5), (-63.9, 6.5)])
sketch5.addConstraint(Sketcher.Constraint("Vertical", 0))
sketch5.addConstraint(Sketcher.Constraint("Horizontal", 1))
sketch5.addConstraint(Sketcher.Constraint("Vertical", 2))
sketch5.addConstraint(Sketcher.Constraint("Horizontal", 3))
sketch5.addConstraint(Sketcher.Constraint("DistanceX", 1, 2, 1, 1, 65.0))
sketch5.addConstraint(Sketcher.Constraint("DistanceY", 0, 2, 0, 1, 2.0))
sketch5.addConstraint(Sketcher.Constraint("DistanceY", -1, 1, 0, 2, 4.5))
sketch5.addConstraint(Sketcher.Constraint("DistanceX", -1, 1, 0, 2, 1.141344))
pad5 = body2.newObject("PartDesign::Pad", "Pad004")
pad5.Profile = sketch5
pad5.Length = 5
pad5.Reversed = True
body3 = doc.addObject("PartDesign::Body", "Body002")

sketch6 = body3.newObject("Sketcher::SketchObject", "Sketch005")
sketch6.AttachmentSupport = (doc.getObject("XZ_Plane002"), [""])
sketch6.MapMode = "FlatFace"
add_polygon(sketch6, [(-45, -20), (-45, 9), (-77, 9), (-77, -20)])
sketch6.addConstraint(Sketcher.Constraint("Vertical", 0))
sketch6.addConstraint(Sketcher.Constraint("Horizontal", 1))
sketch6.addConstraint(Sketcher.Constraint("Vertical", 2))
sketch6.addConstraint(Sketcher.Constraint("Horizontal", 3))
sketch6.addConstraint(Sketcher.Constraint("DistanceX", 1, 2, 1, 1, 31.428675))
sketch6.addConstraint(Sketcher.Constraint("DistanceY", 0, 1, 0, 2, 29.090913))
sketch6.addConstraint(Sketcher.Constraint("DistanceX", 1, 2, -1, 1, 76.681722))
sketch6.addConstraint(Sketcher.Constraint("DistanceY", -1, 1, 0, 2, 9.141936))
pad6 = body3.newObject("PartDesign::Pad", "Pad005")
pad6.Profile = sketch6
pad6.Length = 80.232705
pad6.Reversed = True
doc.recompute()

body4 = doc.addObject("PartDesign::Body", "Body003")
body4.BaseFeature = body3
boolean = body.newObject("PartDesign::Boolean", "Boolean")
boolean.Type = "Cut"
boolean.addObjects([body4])
doc.recompute()

boolean2 = body2.newObject("PartDesign::Boolean", "Boolean001")
boolean2.Type = "Cut"
boolean2.addObjects([body3])
body5 = doc.addObject("PartDesign::Body", "Body004")

sketch7 = body5.newObject("Sketcher::SketchObject", "Sketch006")
sketch7.AttachmentSupport = (doc.getObject("XY_Plane004"), [""])
sketch7.MapMode = "FlatFace"
sketch7.AttachmentOffset = App.Placement(Vector(0, 0, 1.251936), App.Rotation())
sketch7.addGeometry(Part.LineSegment(Vector(-45.3, 6.5, 0), Vector(-45.3, 5, 0)), False)
sketch7.addGeometry(Part.ArcOfCircle(Part.Circle(Vector(-36.6, -19.2, 0), Vector(0, 0, 1), 25.7), math.radians(90), math.radians(109.65)), False)
sketch7.addGeometry(Part.LineSegment(Vector(-36.6, 6.5, 0), Vector(-45.3, 6.5, 0)), False)
sketch7.addConstraint(Sketcher.Constraint("Coincident", 0, 2, 1, 2))
sketch7.addConstraint(Sketcher.Constraint("Tangent", 1, 1, 2, 1))
sketch7.addConstraint(Sketcher.Constraint("Coincident", 2, 2, 0, 1))
sketch7.addConstraint(Sketcher.Constraint("Vertical", 0))
sketch7.addConstraint(Sketcher.Constraint("Horizontal", 2))
sketch7.addConstraint(Sketcher.Constraint("DistanceY", 0, 2, 0, 1, 1.5))
sketch7.addConstraint(Sketcher.Constraint("DistanceY", -1, 1, 0, 2, 5.0))
sketch7.addConstraint(Sketcher.Constraint("Radius", 1, 25.746732))
sketch7.addConstraint(Sketcher.Constraint("DistanceX", 1, 3, -1, 1, 36.593359))
pad7 = body5.newObject("PartDesign::Pad", "Pad006")
pad7.Profile = sketch7
pad7.Length = 64.693314
pad7.Reversed = True
doc.recompute()

body6 = doc.addObject("PartDesign::Body", "Body005")
body6.BaseFeature = body5
boolean3 = body.newObject("PartDesign::Boolean", "Boolean002")
boolean3.Type = "Cut"
boolean3.addObjects([body6])
doc.recompute()

fillet = body.newObject("PartDesign::Fillet", "Fillet")
fillet.Base = (boolean3, edges_at(boolean3, [(-22.056, 5, 1.252), (-22.056, 1.5, 1.252)]))
fillet.Radius = 1
doc.recompute()

boolean4 = body2.newObject("PartDesign::Boolean", "Boolean003")
boolean4.Type = "Cut"
boolean4.addObjects([body5])
doc.recompute()

fillet2 = body2.newObject("PartDesign::Fillet", "Fillet001")
fillet2.Base = (boolean4, edges_at(boolean4, [(1.141, 7.25, 1.252), (1.141, 8, -2.748)]))
fillet2.Radius = 1

doc.recompute()
